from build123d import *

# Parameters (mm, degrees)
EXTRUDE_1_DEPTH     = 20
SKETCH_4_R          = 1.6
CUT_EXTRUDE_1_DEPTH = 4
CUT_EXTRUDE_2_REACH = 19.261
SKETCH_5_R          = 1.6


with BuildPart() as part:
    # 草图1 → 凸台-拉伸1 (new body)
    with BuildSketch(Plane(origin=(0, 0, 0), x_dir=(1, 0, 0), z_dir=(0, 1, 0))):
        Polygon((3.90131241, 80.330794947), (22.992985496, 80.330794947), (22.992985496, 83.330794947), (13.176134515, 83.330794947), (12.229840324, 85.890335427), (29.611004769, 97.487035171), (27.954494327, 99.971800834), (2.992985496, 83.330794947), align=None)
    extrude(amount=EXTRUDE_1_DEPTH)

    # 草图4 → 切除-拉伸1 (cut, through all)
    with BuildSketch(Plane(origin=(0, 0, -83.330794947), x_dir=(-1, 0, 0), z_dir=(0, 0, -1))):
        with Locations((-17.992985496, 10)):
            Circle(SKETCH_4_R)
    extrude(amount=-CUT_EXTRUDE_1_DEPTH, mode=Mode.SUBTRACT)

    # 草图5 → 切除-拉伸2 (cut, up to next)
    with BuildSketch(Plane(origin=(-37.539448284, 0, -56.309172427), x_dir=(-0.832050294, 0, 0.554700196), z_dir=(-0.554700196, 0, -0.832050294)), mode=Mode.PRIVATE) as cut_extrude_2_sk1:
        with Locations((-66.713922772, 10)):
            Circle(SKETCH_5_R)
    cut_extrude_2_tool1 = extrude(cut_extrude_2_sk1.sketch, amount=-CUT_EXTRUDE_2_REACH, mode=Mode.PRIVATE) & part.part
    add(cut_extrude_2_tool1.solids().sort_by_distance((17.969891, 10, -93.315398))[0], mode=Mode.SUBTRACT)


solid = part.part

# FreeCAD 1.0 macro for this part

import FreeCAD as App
import Part
import Sketcher
Q = App.Units.Quantity


def add_polygon(sketch, points):
    """Adds a closed chain of lines whose ends are joined by coincident constraints."""
    first, n = sketch.GeometryCount, len(points)
    for a, b in zip(points, points[1:] + points[:1]):
        sketch.addGeometry(Part.LineSegment(App.Vector(*a, 0), App.Vector(*b, 0)), False)
    for i in range(n):
        sketch.addConstraint(Sketcher.Constraint("Coincident", first + i, 2, first + (i + 1) % n, 1))

doc = App.newDocument("Part")
params = doc.addObject("Spreadsheet::Sheet", "Params")
for row, (alias, value) in enumerate([
    ("sketch1_height", "3 mm"),
    ("sketch1_length", "30 mm"),
    ("pad1_length", "20 mm"),
    ("sketch2_diameter", "3.2 mm"),
    ("sketch3_diameter", "3.2 mm"),
], start=1):
    params.set(f"A{row}", alias)
    params.set(f"B{row}", "=" + value)
    params.setAlias(f"B{row}", alias)

body = doc.addObject("PartDesign::Body", "Body")

# Sketch on XZ plane
sketch1 = doc.addObject("Sketcher::SketchObject", "Sketch")
body.addObject(sketch1)
sketch1.AttachmentSupport = (doc.XZ_Plane, [""])
sketch1.MapMode = "FlatFace"
add_polygon(sketch1, [(3.901312, -80.330795), (22.992985, -80.330795), (22.992985, -83.330795), (13.176135, -83.330795), (12.22984, -85.890335), (29.611005, -97.487035), (27.954494, -99.971801), (2.992985, -83.330795)])  # lines 0-7
sketch1.addConstraint([
    Sketcher.Constraint("Horizontal", 0),
    Sketcher.Constraint("Vertical", 1),
    Sketcher.Constraint("Horizontal", 2),
    Sketcher.Constraint("Perpendicular", 5, 6),
    Sketcher.Constraint("Horizontal", 2, 2, 6, 2),
    Sketcher.Constraint("DistanceY", 1, 2, 1, 1, 3.0),
    Sketcher.Constraint("Distance", 6, 30.0),
    Sketcher.Constraint("DistanceX", 6, 2, 1, 2, 20.0),
    Sketcher.Constraint("Angle", 3, Q("-110.289985 deg")),
    Sketcher.Constraint("DistanceX", 2, 2, 2, 1, 9.816851),
    Sketcher.Constraint("DistanceY", 5, 2, -1, 1, 99.971801),
    Sketcher.Constraint("DistanceY", 4, 2, 3, 2, 11.5967),
    Sketcher.Constraint("DistanceX", 0, 1, 0, 2, 19.091673),
    Sketcher.Constraint("DistanceX", -1, 1, 3, 2, 12.22984),
    Sketcher.Constraint("DistanceY", 3, 2, 2, 2, 2.55954),
    Sketcher.Constraint("DistanceX", 1, 2, 4, 2, 6.618019),
])
sketch1.setExpression("Constraints[13]", "Params.sketch1_height")
sketch1.setExpression("Constraints[14]", "Params.sketch1_length")
pad1 = doc.addObject("PartDesign::Pad", "Pad")
body.addObject(pad1)
pad1.Profile = sketch1
pad1.setExpression("Length", "Params.pad1_length")
pad1.Reversed = True

# Sketch on XY plane
sketch2 = doc.addObject("Sketcher::SketchObject", "Sketch001")
body.addObject(sketch2)
sketch2.AttachmentSupport = (doc.XY_Plane, [""])
sketch2.MapMode = "FlatFace"
sketch2.AttachmentOffset = App.Placement(App.Vector(0, 0, -83.330795), App.Rotation())
sketch2.addGeometry(Part.Circle(App.Vector(17.992985, 10, 0), App.Vector(0, 0, 1), 1.6), False)
sketch2.addConstraint([
    Sketcher.Constraint("Diameter", 0, 3.2),
    Sketcher.Constraint("DistanceY", -1, 1, 0, 3, 10.0),
    Sketcher.Constraint("DistanceX", -1, 1, 0, 3, 17.992985),
])
sketch2.setExpression("Constraints[0]", "Params.sketch2_diameter")
pocket1 = doc.addObject("PartDesign::Pocket", "Pocket")
body.addObject(pocket1)
pocket1.Profile = sketch2
pocket1.Type = "ThroughAll"
pocket1.Reversed = True

# Sketch on an angled plane
sketch3 = doc.addObject("Sketcher::SketchObject", "Sketch002")
body.addObject(sketch3)
sketch3.Placement = App.Placement(App.Vector(-37.539448, 0, -56.309172), App.Rotation(App.Vector(-0.832050294, 0, 0.554700196), App.Vector(0, 0.999999999, 0), App.Vector(-0.554700196, 0, -0.832050294), "ZXY"))
sketch3.addGeometry(Part.Circle(App.Vector(-66.713923, 10, 0), App.Vector(0, 0, 1), 1.6), False)
sketch3.addConstraint([
    Sketcher.Constraint("Diameter", 0, 3.2),
    Sketcher.Constraint("DistanceY", -1, 1, 0, 3, 10.0),
    Sketcher.Constraint("DistanceX", 0, 3, -1, 1, 66.713923),
])
sketch3.setExpression("Constraints[0]", "Params.sketch3_diameter")
pocket2 = doc.addObject("PartDesign::Pocket", "Pocket001")
body.addObject(pocket2)
pocket2.Profile = sketch3
pocket2.Type = "UpToFirst"

doc.recompute()
